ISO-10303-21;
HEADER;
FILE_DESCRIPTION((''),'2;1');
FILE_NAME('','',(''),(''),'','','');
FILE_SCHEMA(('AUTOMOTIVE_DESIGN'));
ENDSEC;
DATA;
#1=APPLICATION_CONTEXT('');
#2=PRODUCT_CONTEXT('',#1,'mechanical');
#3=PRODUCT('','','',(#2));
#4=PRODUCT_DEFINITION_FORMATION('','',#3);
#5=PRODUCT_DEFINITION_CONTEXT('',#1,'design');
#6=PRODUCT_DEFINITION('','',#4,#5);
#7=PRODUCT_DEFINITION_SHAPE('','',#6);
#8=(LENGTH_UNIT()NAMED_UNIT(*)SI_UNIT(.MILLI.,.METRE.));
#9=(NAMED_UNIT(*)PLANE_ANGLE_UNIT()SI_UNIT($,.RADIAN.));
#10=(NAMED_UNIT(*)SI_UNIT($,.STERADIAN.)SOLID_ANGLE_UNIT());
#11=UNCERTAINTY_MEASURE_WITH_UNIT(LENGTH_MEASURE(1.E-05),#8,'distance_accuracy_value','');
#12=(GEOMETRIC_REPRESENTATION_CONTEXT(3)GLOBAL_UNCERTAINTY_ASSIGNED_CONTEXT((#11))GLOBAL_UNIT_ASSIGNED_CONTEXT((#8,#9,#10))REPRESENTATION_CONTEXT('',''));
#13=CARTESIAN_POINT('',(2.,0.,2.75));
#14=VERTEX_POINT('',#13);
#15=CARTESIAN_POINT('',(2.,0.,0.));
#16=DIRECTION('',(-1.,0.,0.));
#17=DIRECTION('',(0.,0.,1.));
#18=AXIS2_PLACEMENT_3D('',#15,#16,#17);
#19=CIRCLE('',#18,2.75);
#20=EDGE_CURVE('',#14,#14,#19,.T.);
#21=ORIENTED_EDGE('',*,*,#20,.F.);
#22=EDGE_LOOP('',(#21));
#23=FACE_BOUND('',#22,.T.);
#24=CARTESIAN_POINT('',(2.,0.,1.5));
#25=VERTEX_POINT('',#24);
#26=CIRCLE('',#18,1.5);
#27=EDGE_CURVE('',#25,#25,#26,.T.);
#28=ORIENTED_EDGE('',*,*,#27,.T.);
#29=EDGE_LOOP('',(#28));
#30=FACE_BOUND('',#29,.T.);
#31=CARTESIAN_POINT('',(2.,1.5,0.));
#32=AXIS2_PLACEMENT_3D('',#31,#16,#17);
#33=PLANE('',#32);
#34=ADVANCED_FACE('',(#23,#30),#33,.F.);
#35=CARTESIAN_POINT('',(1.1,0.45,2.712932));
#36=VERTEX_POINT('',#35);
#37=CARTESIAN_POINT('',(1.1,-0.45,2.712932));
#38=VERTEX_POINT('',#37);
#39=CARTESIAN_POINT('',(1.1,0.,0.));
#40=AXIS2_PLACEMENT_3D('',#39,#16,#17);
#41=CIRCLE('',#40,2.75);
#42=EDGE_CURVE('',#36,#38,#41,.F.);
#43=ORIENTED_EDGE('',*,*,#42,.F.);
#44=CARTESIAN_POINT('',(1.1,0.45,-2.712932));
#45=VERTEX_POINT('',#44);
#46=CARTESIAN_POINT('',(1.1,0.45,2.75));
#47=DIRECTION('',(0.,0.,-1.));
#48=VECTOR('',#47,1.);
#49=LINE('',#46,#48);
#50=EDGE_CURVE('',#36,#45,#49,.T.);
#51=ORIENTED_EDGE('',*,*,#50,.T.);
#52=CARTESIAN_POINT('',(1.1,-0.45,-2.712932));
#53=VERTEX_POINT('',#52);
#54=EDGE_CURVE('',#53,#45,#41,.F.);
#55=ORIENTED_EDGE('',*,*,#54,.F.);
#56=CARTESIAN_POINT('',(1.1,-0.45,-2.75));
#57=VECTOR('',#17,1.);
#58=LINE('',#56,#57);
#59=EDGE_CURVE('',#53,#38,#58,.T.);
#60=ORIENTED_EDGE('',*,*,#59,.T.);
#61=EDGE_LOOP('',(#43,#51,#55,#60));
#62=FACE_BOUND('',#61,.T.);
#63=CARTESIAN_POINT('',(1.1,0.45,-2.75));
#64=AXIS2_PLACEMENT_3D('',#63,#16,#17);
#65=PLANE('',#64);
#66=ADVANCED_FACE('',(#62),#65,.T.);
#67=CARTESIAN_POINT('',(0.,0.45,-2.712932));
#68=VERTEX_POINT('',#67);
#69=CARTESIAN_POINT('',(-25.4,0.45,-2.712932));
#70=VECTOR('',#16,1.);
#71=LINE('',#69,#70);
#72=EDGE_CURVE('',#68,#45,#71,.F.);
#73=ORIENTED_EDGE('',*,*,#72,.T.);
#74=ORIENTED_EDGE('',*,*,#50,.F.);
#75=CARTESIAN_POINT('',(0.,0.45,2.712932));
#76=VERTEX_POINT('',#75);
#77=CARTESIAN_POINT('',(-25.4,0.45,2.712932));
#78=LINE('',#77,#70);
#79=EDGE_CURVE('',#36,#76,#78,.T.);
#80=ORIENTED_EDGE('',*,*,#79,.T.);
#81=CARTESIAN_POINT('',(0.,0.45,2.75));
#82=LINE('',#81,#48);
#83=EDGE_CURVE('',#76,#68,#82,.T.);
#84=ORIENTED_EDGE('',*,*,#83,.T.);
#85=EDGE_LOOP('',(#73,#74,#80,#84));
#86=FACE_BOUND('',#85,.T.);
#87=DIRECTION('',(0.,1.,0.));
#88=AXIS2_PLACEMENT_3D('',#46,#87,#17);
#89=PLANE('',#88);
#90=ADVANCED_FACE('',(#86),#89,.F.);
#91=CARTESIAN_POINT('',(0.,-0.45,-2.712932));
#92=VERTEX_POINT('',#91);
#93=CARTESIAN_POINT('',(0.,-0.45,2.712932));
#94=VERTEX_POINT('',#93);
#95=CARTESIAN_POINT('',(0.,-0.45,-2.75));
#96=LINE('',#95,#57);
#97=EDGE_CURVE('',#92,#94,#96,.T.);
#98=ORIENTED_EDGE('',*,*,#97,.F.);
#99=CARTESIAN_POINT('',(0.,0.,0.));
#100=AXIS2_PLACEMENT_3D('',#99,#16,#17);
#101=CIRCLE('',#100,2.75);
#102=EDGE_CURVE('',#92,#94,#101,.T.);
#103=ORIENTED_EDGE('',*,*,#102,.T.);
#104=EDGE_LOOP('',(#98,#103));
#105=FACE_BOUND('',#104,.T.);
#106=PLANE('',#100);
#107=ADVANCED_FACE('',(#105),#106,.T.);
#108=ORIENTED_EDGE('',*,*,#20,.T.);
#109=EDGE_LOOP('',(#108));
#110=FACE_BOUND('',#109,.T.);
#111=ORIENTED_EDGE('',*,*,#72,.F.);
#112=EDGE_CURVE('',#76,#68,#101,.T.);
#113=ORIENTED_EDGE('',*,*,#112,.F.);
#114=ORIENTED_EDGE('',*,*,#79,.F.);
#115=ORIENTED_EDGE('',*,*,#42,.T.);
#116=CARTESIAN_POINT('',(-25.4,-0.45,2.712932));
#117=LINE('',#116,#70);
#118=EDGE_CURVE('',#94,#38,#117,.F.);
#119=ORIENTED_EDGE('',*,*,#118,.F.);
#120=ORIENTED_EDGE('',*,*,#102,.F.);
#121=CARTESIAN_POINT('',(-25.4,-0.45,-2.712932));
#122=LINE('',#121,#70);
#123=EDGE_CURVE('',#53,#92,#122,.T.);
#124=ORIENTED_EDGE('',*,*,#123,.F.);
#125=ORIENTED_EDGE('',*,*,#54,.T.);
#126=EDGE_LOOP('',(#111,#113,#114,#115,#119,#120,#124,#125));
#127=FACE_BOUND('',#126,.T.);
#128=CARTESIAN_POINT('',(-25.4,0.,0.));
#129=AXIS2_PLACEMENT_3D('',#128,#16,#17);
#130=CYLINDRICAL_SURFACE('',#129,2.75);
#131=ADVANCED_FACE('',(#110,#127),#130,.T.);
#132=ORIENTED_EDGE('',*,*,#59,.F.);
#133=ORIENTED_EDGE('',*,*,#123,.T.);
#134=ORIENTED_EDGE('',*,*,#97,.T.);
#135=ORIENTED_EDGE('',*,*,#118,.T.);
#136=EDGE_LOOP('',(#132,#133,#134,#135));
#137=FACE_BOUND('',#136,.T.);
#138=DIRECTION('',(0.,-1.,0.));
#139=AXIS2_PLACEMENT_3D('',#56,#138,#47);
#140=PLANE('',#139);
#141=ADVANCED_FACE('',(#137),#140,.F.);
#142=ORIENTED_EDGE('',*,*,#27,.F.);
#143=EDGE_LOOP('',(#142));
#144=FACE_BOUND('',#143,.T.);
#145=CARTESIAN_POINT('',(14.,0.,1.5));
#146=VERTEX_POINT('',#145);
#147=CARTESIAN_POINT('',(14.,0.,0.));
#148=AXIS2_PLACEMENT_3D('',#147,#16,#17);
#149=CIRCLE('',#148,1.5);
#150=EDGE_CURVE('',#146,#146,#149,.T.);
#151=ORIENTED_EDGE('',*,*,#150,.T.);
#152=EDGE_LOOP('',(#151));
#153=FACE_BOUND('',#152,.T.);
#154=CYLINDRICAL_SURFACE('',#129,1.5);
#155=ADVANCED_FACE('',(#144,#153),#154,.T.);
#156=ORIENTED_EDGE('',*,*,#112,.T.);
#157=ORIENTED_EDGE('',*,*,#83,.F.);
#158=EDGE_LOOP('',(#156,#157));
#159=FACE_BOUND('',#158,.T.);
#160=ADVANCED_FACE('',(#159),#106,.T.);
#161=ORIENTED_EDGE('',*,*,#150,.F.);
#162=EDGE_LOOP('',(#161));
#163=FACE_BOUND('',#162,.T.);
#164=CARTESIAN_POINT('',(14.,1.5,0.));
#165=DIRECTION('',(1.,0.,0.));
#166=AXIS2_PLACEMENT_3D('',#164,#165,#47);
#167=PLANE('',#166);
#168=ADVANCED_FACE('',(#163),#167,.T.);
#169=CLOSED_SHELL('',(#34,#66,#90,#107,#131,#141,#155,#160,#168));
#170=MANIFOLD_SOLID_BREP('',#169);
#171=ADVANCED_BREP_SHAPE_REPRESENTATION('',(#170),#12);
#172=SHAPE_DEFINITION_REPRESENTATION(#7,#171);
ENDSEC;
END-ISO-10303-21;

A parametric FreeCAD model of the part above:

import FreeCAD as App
import Part
import Sketcher
from FreeCAD import Vector

doc = App.newDocument("Part")
body = doc.addObject("PartDesign::Body", "Body")

# Sketch on XY plane
sketch1 = body.newObject("Sketcher::SketchObject", "Sketch")
sketch1.AttachmentSupport = (doc.getObject("XY_Plane"), [""])
sketch1.MapMode = "FlatFace"
sketch1.addGeometry([
    Part.LineSegment(Vector(2, 1.5, 0), Vector(2, 2.8, 0)),  # 0
    Part.LineSegment(Vector(2, 2.8, 0), Vector(0, 2.8, 0)),  # 1
    Part.LineSegment(Vector(0, 2.8, 0), Vector(0, 0, 0)),  # 2
    Part.LineSegment(Vector(0, 0, 0), Vector(14, 0, 0)),  # 3
    Part.LineSegment(Vector(14, 0, 0), Vector(14, 1.5, 0)),  # 4
    Part.LineSegment(Vector(14, 1.5, 0), Vector(2, 1.5, 0)),  # 5
], False)
sketch1.addConstraint([
    Sketcher.Constraint("Coincident", 0, 2, 1, 1),
    Sketcher.Constraint("Coincident", 1, 2, 2, 1),
    Sketcher.Constraint("Coincident", 2, 2, 3, 1),
    Sketcher.Constraint("Coincident", 3, 2, 4, 1),
    Sketcher.Constraint("Coincident", 4, 2, 5, 1),
    Sketcher.Constraint("Coincident", 5, 2, 0, 1),
    Sketcher.Constraint("Vertical", 0),
    Sketcher.Constraint("Horizontal", 1),
    Sketcher.Constraint("Vertical", 2),
    Sketcher.Constraint("Horizontal", 3),
    Sketcher.Constraint("Vertical", 4),
    Sketcher.Constraint("Horizontal", 5),
    Sketcher.Constraint("Coincident", 2, 2, -1, 1),
    Sketcher.Constraint("DistanceX", 1, 2, 1, 1, 2.0),
    Sketcher.Constraint("DistanceX", 3, 1, 3, 2, 14.0),
    Sketcher.Constraint("DistanceY", 4, 1, 4, 2, 1.5),
    Sketcher.Constraint("DistanceY", 0, 1, 0, 2, 1.25),
])
revolution = body.newObject("PartDesign::Revolution", "Revolution")
revolution.Profile = sketch1
revolution.ReferenceAxis = (sketch1, ["H_Axis"])
revolution.Angle = 360

# Sketch on YZ plane
sketch2 = body.newObject("Sketcher::SketchObject", "Sketch001")
sketch2.AttachmentSupport = (doc.getObject("YZ_Plane"), [""])
sketch2.MapMode = "FlatFace"
sketch2.addGeometry([
    Part.LineSegment(Vector(0.5, 2.8, 0), Vector(-0.5, 2.8, 0)),
    Part.LineSegment(Vector(-0.5, 2.8, 0), Vector(-0.5, -2.8, 0)),
    Part.LineSegment(Vector(-0.5, -2.8, 0), Vector(0.5, -2.8, 0)),
    Part.LineSegment(Vector(0.5, -2.8, 0), Vector(0.5, 2.8, 0)),
], False)
sketch2.addConstraint([
    Sketcher.Constraint("Coincident", 0, 2, 1, 1),
    Sketcher.Constraint("Coincident", 1, 2, 2, 1),
    Sketcher.Constraint("Coincident", 2, 2, 3, 1),
    Sketcher.Constraint("Coincident", 3, 2, 0, 1),
    Sketcher.Constraint("Horizontal", 0),
    Sketcher.Constraint("Vertical", 1),
    Sketcher.Constraint("Horizontal", 2),
    Sketcher.Constraint("Vertical", 3),
    Sketcher.Constraint("Symmetric", 0, 2, 2, 2, -1, 1),
    Sketcher.Constraint("DistanceX", 0, 2, 0, 1, 0.9),
    Sketcher.Constraint("DistanceY", 1, 2, 1, 1, 5.5),
])
pocket1 = body.newObject("PartDesign::Pocket", "Pocket")
pocket1.Profile = sketch2
pocket1.Length = 1.1
pocket1.Reversed = True

doc.recompute()
